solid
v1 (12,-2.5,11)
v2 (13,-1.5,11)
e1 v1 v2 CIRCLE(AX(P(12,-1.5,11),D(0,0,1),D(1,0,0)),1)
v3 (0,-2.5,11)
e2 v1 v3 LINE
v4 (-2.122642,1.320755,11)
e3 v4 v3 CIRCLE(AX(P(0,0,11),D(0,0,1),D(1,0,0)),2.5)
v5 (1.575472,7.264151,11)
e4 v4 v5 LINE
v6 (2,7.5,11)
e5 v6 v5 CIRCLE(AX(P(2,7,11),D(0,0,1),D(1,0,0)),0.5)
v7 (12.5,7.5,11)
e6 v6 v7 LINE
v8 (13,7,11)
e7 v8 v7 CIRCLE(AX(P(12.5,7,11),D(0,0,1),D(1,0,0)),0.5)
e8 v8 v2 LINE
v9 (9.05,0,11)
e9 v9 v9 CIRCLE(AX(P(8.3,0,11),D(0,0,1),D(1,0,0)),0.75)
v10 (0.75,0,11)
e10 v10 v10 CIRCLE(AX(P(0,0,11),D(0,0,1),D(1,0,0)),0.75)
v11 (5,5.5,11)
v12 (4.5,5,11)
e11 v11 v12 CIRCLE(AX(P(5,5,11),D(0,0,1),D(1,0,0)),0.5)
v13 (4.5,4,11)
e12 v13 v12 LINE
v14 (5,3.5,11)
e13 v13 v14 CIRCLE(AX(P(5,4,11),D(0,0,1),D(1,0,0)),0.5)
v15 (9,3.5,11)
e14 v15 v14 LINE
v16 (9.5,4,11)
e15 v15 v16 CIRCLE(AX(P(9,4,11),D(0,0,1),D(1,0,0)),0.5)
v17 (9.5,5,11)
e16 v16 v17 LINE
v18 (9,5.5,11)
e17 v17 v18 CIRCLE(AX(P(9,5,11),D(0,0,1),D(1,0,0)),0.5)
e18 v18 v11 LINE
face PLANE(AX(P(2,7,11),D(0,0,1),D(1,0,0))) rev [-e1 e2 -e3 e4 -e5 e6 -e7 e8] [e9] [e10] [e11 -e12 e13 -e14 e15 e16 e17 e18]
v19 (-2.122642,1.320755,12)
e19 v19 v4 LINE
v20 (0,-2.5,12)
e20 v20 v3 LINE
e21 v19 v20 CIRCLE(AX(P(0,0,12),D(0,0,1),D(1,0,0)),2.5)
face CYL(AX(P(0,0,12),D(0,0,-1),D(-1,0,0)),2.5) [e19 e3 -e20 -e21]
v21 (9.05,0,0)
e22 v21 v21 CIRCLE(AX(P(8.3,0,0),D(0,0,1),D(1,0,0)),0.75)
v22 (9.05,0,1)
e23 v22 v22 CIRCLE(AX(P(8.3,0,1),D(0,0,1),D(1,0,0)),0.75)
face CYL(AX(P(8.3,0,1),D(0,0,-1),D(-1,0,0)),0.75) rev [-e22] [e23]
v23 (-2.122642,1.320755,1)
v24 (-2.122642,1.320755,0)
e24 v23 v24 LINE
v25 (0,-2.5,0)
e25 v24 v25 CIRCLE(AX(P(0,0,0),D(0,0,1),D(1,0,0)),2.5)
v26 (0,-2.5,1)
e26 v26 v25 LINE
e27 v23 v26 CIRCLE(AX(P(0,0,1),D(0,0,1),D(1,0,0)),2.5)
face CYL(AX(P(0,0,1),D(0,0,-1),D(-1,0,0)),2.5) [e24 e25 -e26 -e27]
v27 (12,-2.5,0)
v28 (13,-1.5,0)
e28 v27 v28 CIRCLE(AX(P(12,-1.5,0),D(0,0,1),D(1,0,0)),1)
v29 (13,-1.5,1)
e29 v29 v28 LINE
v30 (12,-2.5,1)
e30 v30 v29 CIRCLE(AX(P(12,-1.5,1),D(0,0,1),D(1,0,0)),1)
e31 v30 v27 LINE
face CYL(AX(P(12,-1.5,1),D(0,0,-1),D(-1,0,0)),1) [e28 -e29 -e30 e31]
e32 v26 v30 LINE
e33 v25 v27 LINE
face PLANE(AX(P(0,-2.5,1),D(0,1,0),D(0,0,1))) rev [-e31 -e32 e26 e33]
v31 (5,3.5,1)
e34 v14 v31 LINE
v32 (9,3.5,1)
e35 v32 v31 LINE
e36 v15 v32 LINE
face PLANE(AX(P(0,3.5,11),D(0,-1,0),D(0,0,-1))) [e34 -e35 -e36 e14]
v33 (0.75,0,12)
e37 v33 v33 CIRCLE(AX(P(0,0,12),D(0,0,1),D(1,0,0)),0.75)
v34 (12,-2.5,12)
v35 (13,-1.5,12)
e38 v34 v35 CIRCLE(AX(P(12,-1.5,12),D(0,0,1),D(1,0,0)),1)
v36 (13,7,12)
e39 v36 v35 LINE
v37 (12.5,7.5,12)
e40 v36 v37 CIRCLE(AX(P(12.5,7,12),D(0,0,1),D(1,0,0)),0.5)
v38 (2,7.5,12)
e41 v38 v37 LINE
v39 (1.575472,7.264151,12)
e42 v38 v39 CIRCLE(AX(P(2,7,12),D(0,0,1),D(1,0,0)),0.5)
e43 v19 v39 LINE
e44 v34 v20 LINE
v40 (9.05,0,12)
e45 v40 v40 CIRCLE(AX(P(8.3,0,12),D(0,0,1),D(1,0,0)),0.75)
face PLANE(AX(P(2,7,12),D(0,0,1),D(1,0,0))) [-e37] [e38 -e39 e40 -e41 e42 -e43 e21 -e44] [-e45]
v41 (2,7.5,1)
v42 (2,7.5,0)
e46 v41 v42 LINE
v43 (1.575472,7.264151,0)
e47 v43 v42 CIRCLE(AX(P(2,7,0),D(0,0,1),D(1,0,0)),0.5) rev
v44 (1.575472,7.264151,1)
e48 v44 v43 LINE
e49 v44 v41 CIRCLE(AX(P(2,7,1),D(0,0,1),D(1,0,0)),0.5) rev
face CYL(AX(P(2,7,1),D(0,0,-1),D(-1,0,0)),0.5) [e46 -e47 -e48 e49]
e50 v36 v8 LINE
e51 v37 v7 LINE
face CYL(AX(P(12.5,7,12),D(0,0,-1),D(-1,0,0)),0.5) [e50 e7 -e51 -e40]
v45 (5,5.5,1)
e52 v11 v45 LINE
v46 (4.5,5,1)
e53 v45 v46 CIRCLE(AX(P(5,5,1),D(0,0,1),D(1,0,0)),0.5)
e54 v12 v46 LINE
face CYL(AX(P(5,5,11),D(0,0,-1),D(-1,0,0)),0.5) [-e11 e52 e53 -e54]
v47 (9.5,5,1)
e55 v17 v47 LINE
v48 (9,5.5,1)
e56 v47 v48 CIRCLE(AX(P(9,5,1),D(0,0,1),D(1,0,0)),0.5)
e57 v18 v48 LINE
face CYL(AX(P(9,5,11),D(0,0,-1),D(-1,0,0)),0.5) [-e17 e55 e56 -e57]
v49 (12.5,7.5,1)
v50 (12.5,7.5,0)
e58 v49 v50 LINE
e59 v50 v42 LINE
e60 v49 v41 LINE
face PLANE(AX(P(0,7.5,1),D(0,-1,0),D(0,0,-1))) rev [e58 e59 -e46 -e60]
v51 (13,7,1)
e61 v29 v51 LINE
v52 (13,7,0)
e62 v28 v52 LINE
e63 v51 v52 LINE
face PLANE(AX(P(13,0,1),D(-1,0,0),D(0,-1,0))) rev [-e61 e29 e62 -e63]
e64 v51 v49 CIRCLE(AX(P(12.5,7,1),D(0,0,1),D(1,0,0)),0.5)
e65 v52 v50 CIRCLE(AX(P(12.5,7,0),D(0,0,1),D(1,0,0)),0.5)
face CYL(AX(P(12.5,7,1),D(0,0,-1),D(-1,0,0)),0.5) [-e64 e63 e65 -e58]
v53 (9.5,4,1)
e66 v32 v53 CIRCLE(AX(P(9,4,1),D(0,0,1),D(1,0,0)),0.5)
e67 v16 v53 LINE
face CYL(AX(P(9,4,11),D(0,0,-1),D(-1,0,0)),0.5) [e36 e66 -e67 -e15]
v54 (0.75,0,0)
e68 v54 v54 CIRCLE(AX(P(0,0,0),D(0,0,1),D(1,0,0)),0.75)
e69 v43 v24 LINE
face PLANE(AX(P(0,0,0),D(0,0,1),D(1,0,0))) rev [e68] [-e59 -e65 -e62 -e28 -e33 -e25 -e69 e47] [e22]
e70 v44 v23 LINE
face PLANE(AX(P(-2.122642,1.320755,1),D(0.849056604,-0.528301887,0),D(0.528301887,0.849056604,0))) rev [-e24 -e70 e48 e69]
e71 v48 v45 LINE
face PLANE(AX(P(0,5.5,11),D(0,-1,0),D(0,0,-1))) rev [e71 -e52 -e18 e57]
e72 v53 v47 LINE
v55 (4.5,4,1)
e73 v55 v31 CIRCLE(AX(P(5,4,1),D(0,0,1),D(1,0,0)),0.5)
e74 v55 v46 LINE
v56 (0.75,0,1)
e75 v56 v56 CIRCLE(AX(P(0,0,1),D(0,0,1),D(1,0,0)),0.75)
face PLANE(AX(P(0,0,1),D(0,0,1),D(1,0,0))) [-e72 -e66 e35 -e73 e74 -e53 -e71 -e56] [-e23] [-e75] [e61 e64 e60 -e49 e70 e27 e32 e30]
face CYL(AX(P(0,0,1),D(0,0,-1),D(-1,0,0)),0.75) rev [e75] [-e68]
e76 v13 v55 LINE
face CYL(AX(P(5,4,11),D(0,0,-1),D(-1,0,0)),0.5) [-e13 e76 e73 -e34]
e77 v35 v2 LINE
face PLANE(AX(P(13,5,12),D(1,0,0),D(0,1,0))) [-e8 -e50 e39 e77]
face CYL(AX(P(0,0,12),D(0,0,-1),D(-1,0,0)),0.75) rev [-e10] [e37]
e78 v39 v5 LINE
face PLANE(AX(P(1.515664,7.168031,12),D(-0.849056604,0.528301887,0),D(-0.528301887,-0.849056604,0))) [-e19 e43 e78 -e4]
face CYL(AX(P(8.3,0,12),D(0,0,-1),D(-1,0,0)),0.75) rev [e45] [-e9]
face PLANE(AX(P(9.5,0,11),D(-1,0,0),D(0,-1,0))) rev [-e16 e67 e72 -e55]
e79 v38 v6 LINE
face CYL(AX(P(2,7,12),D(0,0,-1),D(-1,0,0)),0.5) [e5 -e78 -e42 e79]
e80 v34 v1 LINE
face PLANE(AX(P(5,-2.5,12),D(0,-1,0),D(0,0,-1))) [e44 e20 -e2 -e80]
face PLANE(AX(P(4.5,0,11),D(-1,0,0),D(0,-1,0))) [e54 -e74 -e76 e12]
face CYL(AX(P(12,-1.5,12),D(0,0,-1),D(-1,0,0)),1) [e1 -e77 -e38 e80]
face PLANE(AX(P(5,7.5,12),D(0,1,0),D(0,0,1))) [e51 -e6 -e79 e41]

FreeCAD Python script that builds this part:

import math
import FreeCAD as App
import Part
import Sketcher
Q = App.Units.Quantity

doc = App.newDocument("Part")
body = doc.addObject("PartDesign::Body", "Body")

# Sketch on XY plane
sketch1 = doc.addObject("Sketcher::SketchObject", "Sketch")
body.addObject(sketch1)
sketch1.AttachmentSupport = (doc.XY_Plane, [""])
sketch1.MapMode = "FlatFace"
sketch1.addGeometry(Part.LineSegment(App.Vector(1.58, 7.26, 0), App.Vector(-2.12, 1.32, 0)), False)
sketch1.addGeometry(Part.ArcOfCircle(Part.Circle(App.Vector(0, 0, 0), App.Vector(0, 0, 1), 2.5), math.radians(148), math.radians(270)), False)
sketch1.addGeometry(Part.LineSegment(App.Vector(0, -2.5, 0), App.Vector(12, -2.5, 0)), False)
sketch1.addGeometry(Part.ArcOfCircle(Part.Circle(App.Vector(12, -1.5, 0), App.Vector(0, 0, 1), 1), math.radians(-90), math.radians(0)), False)
sketch1.addGeometry(Part.LineSegment(App.Vector(13, -1.5, 0), App.Vector(13, 7, 0)), False)
sketch1.addGeometry(Part.ArcOfCircle(Part.Circle(App.Vector(12.5, 7, 0), App.Vector(0, 0, 1), 0.5), math.radians(0), math.radians(90)), False)
sketch1.addGeometry(Part.LineSegment(App.Vector(12.5, 7.5, 0), App.Vector(2, 7.5, 0)), False)
sketch1.addGeometry(Part.ArcOfCircle(Part.Circle(App.Vector(2, 7, 0), App.Vector(0, 0, 1), 0.5), math.radians(90), math.radians(148)), False)
sketch1.addGeometry(Part.Circle(App.Vector(0, 0, 0), App.Vector(0, 0, 1), 0.75), False)
sketch1.addGeometry(Part.Circle(App.Vector(8.3, 0, 0), App.Vector(0, 0, 1), 0.75), False)
sketch1.addConstraint(Sketcher.Constraint("Tangent", 0, 2, 1, 1))
sketch1.addConstraint(Sketcher.Constraint("Tangent", 1, 2, 2, 1))
sketch1.addConstraint(Sketcher.Constraint("Tangent", 2, 2, 3, 1))
sketch1.addConstraint(Sketcher.Constraint("Tangent", 3, 2, 4, 1))
sketch1.addConstraint(Sketcher.Constraint("Tangent", 4, 2, 5, 1))
sketch1.addConstraint(Sketcher.Constraint("Tangent", 5, 2, 6, 1))
sketch1.addConstraint(Sketcher.Constraint("Tangent", 6, 2, 7, 1))
sketch1.addConstraint(Sketcher.Constraint("Tangent", 7, 2, 0, 1))
sketch1.addConstraint(Sketcher.Constraint("Horizontal", 2))
sketch1.addConstraint(Sketcher.Constraint("Vertical", 4))
sketch1.addConstraint(Sketcher.Constraint("Horizontal", 6))
sketch1.addConstraint(Sketcher.Constraint("Coincident", 1, 3, -1, 1))
sketch1.addConstraint(Sketcher.Constraint("Coincident", 8, 3, -1, 1))
sketch1.addConstraint(Sketcher.Constraint("Equal", 5, 7))
sketch1.addConstraint(Sketcher.Constraint("Equal", 8, 9))
sketch1.addConstraint(Sketcher.Constraint("PointOnObject", 9, 3, -1))
sketch1.addConstraint(Sketcher.Constraint("Radius", 3, Q("1 mm")))
sketch1.addConstraint(Sketcher.Constraint("Diameter", 8, Q("1.5 mm")))
sketch1.addConstraint(Sketcher.Constraint("Radius", 1, Q("2.5 mm")))
sketch1.addConstraint(Sketcher.Constraint("Radius", 5, Q("0.5 mm")))
sketch1.addConstraint(Sketcher.Constraint("DistanceX", 2, 1, 2, 2, Q("12 mm")))
sketch1.addConstraint(Sketcher.Constraint("Distance", 0, Q("7 mm")))
sketch1.addConstraint(Sketcher.Constraint("DistanceX", 6, 2, 6, 1, Q("10.5 mm")))
sketch1.addConstraint(Sketcher.Constraint("DistanceX", -1, 1, 9, 3, Q("8.3 mm")))
pad1 = doc.addObject("PartDesign::Pad", "Pad")
body.addObject(pad1)
pad1.Profile = sketch1
pad1.Length = 1

# Sketch on XY plane
sketch2 = doc.addObject("Sketcher::SketchObject", "Sketch001")
body.addObject(sketch2)
sketch2.AttachmentSupport = (doc.XY_Plane, [""])
sketch2.MapMode = "FlatFace"
sketch2.AttachmentOffset = App.Placement(App.Vector(0, 0, 1), App.Rotation())
sketch2.addGeometry(Part.LineSegment(App.Vector(9, 5.5, 0), App.Vector(5, 5.5, 0)), False)
sketch2.addGeometry(Part.ArcOfCircle(Part.Circle(App.Vector(5, 5, 0), App.Vector(0, 0, 1), 0.5), math.radians(90), math.radians(180)), False)
sketch2.addGeometry(Part.LineSegment(App.Vector(4.5, 5, 0), App.Vector(4.5, 4, 0)), False)
sketch2.addGeometry(Part.ArcOfCircle(Part.Circle(App.Vector(5, 4, 0), App.Vector(0, 0, 1), 0.5), math.radians(180), math.radians(270)), False)
sketch2.addGeometry(Part.LineSegment(App.Vector(5, 3.5, 0), App.Vector(9, 3.5, 0)), False)
sketch2.addGeometry(Part.ArcOfCircle(Part.Circle(App.Vector(9, 4, 0), App.Vector(0, 0, 1), 0.5), math.radians(-90), math.radians(0)), False)
sketch2.addGeometry(Part.LineSegment(App.Vector(9.5, 4, 0), App.Vector(9.5, 5, 0)), False)
sketch2.addGeometry(Part.ArcOfCircle(Part.Circle(App.Vector(9, 5, 0), App.Vector(0, 0, 1), 0.5), math.radians(0), math.radians(90)), False)
sketch2.addConstraint(Sketcher.Constraint("Tangent", 0, 2, 1, 1))
sketch2.addConstraint(Sketcher.Constraint("Tangent", 1, 2, 2, 1))
sketch2.addConstraint(Sketcher.Constraint("Tangent", 2, 2, 3, 1))
sketch2.addConstraint(Sketcher.Constraint("Tangent", 3, 2, 4, 1))
sketch2.addConstraint(Sketcher.Constraint("Tangent", 4, 2, 5, 1))
sketch2.addConstraint(Sketcher.Constraint("Tangent", 5, 2, 6, 1))
sketch2.addConstraint(Sketcher.Constraint("Tangent", 6, 2, 7, 1))
sketch2.addConstraint(Sketcher.Constraint("Tangent", 7, 2, 0, 1))
sketch2.addConstraint(Sketcher.Constraint("Horizontal", 0))
sketch2.addConstraint(Sketcher.Constraint("Vertical", 2))
sketch2.addConstraint(Sketcher.Constraint("Horizontal", 4))
sketch2.addConstraint(Sketcher.Constraint("Vertical", 6))
sketch2.addConstraint(Sketcher.Constraint("Equal", 1, 3))
sketch2.addConstraint(Sketcher.Constraint("Equal", 3, 5))
sketch2.addConstraint(Sketcher.Constraint("Equal", 5, 7))
sketch2.addConstraint(Sketcher.Constraint("Radius", 1, Q("0.5 mm")))
sketch2.addConstraint(Sketcher.Constraint("DistanceX", 0, 2, 0, 1, Q("4 mm")))
sketch2.addConstraint(Sketcher.Constraint("DistanceY", 2, 2, 2, 1, Q("1 mm")))
sketch2.addConstraint(Sketcher.Constraint("DistanceX", -1, 1, 1, 3, Q("5 mm")))
sketch2.addConstraint(Sketcher.Constraint("DistanceY", -1, 1, 1, 3, Q("5 mm")))
pad2 = doc.addObject("PartDesign::Pad", "Pad001")
body.addObject(pad2)
pad2.Profile = sketch2
pad2.Length = 10

# Sketch on XY plane
sketch3 = doc.addObject("Sketcher::SketchObject", "Sketch002")
body.addObject(sketch3)
sketch3.AttachmentSupport = (doc.XY_Plane, [""])
sketch3.MapMode = "FlatFace"
sketch3.AttachmentOffset = App.Placement(App.Vector(0, 0, 11), App.Rotation())
sketch3.addGeometry(Part.LineSegment(App.Vector(1.58, 7.26, 0), App.Vector(-2.12, 1.32, 0)), False)
sketch3.addGeometry(Part.ArcOfCircle(Part.Circle(App.Vector(0, 0, 0), App.Vector(0, 0, 1), 2.5), math.radians(148), math.radians(270)), False)
sketch3.addGeometry(Part.LineSegment(App.Vector(0, -2.5, 0), App.Vector(12, -2.5, 0)), False)
sketch3.addGeometry(Part.ArcOfCircle(Part.Circle(App.Vector(12, -1.5, 0), App.Vector(0, 0, 1), 1), math.radians(-90), math.radians(0)), False)
sketch3.addGeometry(Part.LineSegment(App.Vector(13, -1.5, 0), App.Vector(13, 7, 0)), False)
sketch3.addGeometry(Part.ArcOfCircle(Part.Circle(App.Vector(12.5, 7, 0), App.Vector(0, 0, 1), 0.5), math.radians(0), math.radians(90)), False)
sketch3.addGeometry(Part.LineSegment(App.Vector(12.5, 7.5, 0), App.Vector(2, 7.5, 0)), False)
sketch3.addGeometry(Part.ArcOfCircle(Part.Circle(App.Vector(2, 7, 0), App.Vector(0, 0, 1), 0.5), math.radians(90), math.radians(148)), False)
sketch3.addGeometry(Part.Circle(App.Vector(0, 0, 0), App.Vector(0, 0, 1), 0.75), False)
sketch3.addGeometry(Part.Circle(App.Vector(8.3, 0, 0), App.Vector(0, 0, 1), 0.75), False)
sketch3.addConstraint(Sketcher.Constraint("Tangent", 0, 2, 1, 1))
sketch3.addConstraint(Sketcher.Constraint("Tangent", 1, 2, 2, 1))
sketch3.addConstraint(Sketcher.Constraint("Tangent", 2, 2, 3, 1))
sketch3.addConstraint(Sketcher.Constraint("Tangent", 3, 2, 4, 1))
sketch3.addConstraint(Sketcher.Constraint("Tangent", 4, 2, 5, 1))
sketch3.addConstraint(Sketcher.Constraint("Tangent", 5, 2, 6, 1))
sketch3.addConstraint(Sketcher.Constraint("Tangent", 6, 2, 7, 1))
sketch3.addConstraint(Sketcher.Constraint("Tangent", 7, 2, 0, 1))
sketch3.addConstraint(Sketcher.Constraint("Horizontal", 2))
sketch3.addConstraint(Sketcher.Constraint("Vertical", 4))
sketch3.addConstraint(Sketcher.Constraint("Horizontal", 6))
sketch3.addConstraint(Sketcher.Constraint("Coincident", 1, 3, -1, 1))
sketch3.addConstraint(Sketcher.Constraint("Coincident", 8, 3, -1, 1))
sketch3.addConstraint(Sketcher.Constraint("Equal", 5, 7))
sketch3.addConstraint(Sketcher.Constraint("Equal", 8, 9))
sketch3.addConstraint(Sketcher.Constraint("PointOnObject", 9, 3, -1))
sketch3.addConstraint(Sketcher.Constraint("Radius", 3, Q("1 mm")))
sketch3.addConstraint(Sketcher.Constraint("Diameter", 8, Q("1.5 mm")))
sketch3.addConstraint(Sketcher.Constraint("Radius", 1, Q("2.5 mm")))
sketch3.addConstraint(Sketcher.Constraint("Radius", 5, Q("0.5 mm")))
sketch3.addConstraint(Sketcher.Constraint("DistanceX", 2, 1, 2, 2, Q("12 mm")))
sketch3.addConstraint(Sketcher.Constraint("Distance", 0, Q("7 mm")))
sketch3.addConstraint(Sketcher.Constraint("DistanceX", 6, 2, 6, 1, Q("10.5 mm")))
sketch3.addConstraint(Sketcher.Constraint("DistanceX", -1, 1, 9, 3, Q("8.3 mm")))
pad3 = doc.addObject("PartDesign::Pad", "Pad002")
body.addObject(pad3)
pad3.Profile = sketch3
pad3.Length = 1

doc.recompute()
